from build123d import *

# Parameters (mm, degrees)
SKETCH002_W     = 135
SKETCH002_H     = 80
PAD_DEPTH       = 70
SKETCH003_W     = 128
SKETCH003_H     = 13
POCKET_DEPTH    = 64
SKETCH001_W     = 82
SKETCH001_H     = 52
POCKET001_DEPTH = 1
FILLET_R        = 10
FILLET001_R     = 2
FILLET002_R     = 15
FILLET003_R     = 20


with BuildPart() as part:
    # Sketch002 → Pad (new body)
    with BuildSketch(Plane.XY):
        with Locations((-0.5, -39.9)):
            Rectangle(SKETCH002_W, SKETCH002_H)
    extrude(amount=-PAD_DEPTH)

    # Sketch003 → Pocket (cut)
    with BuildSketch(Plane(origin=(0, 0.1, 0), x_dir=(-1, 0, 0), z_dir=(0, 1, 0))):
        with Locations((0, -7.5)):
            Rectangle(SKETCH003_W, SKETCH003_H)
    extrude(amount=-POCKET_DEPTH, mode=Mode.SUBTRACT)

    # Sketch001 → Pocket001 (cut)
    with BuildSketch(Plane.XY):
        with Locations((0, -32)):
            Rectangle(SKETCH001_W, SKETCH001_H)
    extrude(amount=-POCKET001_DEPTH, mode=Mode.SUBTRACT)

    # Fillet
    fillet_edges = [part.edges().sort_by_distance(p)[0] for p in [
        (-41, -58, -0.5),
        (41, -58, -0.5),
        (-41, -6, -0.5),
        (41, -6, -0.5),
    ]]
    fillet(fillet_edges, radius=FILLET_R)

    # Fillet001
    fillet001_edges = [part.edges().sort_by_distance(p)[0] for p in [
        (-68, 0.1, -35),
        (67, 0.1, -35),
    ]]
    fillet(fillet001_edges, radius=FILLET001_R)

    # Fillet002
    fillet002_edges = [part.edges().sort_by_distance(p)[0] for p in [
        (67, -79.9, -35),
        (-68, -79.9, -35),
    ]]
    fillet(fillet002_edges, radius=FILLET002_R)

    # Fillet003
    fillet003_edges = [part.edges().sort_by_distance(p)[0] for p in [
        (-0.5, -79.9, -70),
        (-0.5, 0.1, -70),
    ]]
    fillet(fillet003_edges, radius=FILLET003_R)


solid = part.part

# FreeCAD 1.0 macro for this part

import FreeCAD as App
import Part
import Sketcher
from FreeCAD import Vector


def edges_at(feature, points):
    """Names of the edges that pass closest to the given points."""
    edges = feature.Shape.Edges
    near = lambda p: min(range(len(edges)), key=lambda i: edges[i].distToShape(Part.Vertex(*p))[0])
    return sorted({f"Edge{near(p) + 1}" for p in points})


def add_polygon(sketch, points):
    """Adds a closed chain of lines whose ends are joined by coincident constraints."""
    first, n = sketch.GeometryCount, len(points)
    for a, b in zip(points, points[1:] + points[:1]):
        sketch.addGeometry(Part.LineSegment(App.Vector(*a, 0), App.Vector(*b, 0)), False)
    for i in range(n):
        sketch.addConstraint(Sketcher.Constraint("Coincident", first + i, 2, first + (i + 1) % n, 1))

doc = App.newDocument("Part")
body = doc.addObject("PartDesign::Body", "Body")

sketch1 = doc.addObject("Sketcher::SketchObject", "Sketch")
body.addObject(sketch1)
sketch1.AttachmentSupport = (doc.XY_Plane, [""])
sketch1.MapMode = "FlatFace"
add_polygon(sketch1, [(-68, 0), (-68, -80), (67, -80), (67, 0)])
sketch1.addConstraint([
    Sketcher.Constraint("Vertical", 0),
    Sketcher.Constraint("Horizontal", 1),
    Sketcher.Constraint("Vertical", 2),
    Sketcher.Constraint("Horizontal", 3),
    Sketcher.Constraint("DistanceX", 1, 1, 1, 2, 135.0),
    Sketcher.Constraint("DistanceY", 0, 2, 0, 1, 80.0),
    Sketcher.Constraint("DistanceX", 0, 2, -1, 1, 68.0),
    Sketcher.Constraint("DistanceY", 0, 2, -1, 1, 79.9),
])
pad1 = doc.addObject("PartDesign::Pad", "Pad")
body.addObject(pad1)
pad1.Profile = sketch1
pad1.Length = 70
pad1.Reversed = True

sketch2 = doc.addObject("Sketcher::SketchObject", "Sketch001")
body.addObject(sketch2)
sketch2.AttachmentSupport = (doc.XZ_Plane, [""])
sketch2.MapMode = "FlatFace"
sketch2.AttachmentOffset = App.Placement(Vector(0, 0, -0.1), App.Rotation())
add_polygon(sketch2, [(64, -1), (64, -14), (-64, -14), (-64, -1)])
sketch2.addConstraint([
    Sketcher.Constraint("Vertical", 0),
    Sketcher.Constraint("Horizontal", 1),
    Sketcher.Constraint("Vertical", 2),
    Sketcher.Constraint("Horizontal", 3),
    Sketcher.Constraint("DistanceX", 1, 2, 1, 1, 128.0),
    Sketcher.Constraint("DistanceY", 0, 2, 0, 1, 13.0),
    Sketcher.Constraint("DistanceX", -1, 1, 0, 2, 64.0),
    Sketcher.Constraint("DistanceY", 0, 2, -1, 1, 14.0),
])
pocket1 = doc.addObject("PartDesign::Pocket", "Pocket")
body.addObject(pocket1)
pocket1.Profile = sketch2
pocket1.Length = 64
pocket1.Reversed = True

sketch3 = doc.addObject("Sketcher::SketchObject", "Sketch002")
body.addObject(sketch3)
sketch3.AttachmentSupport = (doc.XY_Plane, [""])
sketch3.MapMode = "FlatFace"
add_polygon(sketch3, [(-41, -6), (-41, -58), (41, -58), (41, -6)])
sketch3.addConstraint([
    Sketcher.Constraint("Vertical", 0),
    Sketcher.Constraint("Horizontal", 1),
    Sketcher.Constraint("Vertical", 2),
    Sketcher.Constraint("Horizontal", 3),
    Sketcher.Constraint("DistanceX", 1, 1, 1, 2, 82.0),
    Sketcher.Constraint("DistanceY", 0, 2, 0, 1, 52.0),
    Sketcher.Constraint("DistanceX", 0, 2, -1, 1, 41.0),
    Sketcher.Constraint("DistanceY", 0, 2, -1, 1, 58.0),
])
pocket2 = doc.addObject("PartDesign::Pocket", "Pocket001")
body.addObject(pocket2)
pocket2.Profile = sketch3
pocket2.Length = 1
doc.recompute()

fillet = doc.addObject("PartDesign::Fillet", "Fillet")
body.addObject(fillet)
fillet.Base = (pocket2, edges_at(pocket2, [
    (-41, -58, -0.5),
    (41, -58, -0.5),
    (-41, -6, -0.5),
    (41, -6, -0.5),
]))
fillet.Radius = 10
doc.recompute()

fillet2 = doc.addObject("PartDesign::Fillet", "Fillet001")
body.addObject(fillet2)
fillet2.Base = (fillet, edges_at(fillet, [(-68, 0.1, -35), (67, 0.1, -35)]))
fillet2.Radius = 2
doc.recompute()

fillet3 = doc.addObject("PartDesign::Fillet", "Fillet002")
body.addObject(fillet3)
fillet3.Base = (fillet2, edges_at(fillet2, [(67, -79.9, -35), (-68, -79.9, -35)]))
fillet3.Radius = 15
doc.recompute()

fillet4 = doc.addObject("PartDesign::Fillet", "Fillet003")
body.addObject(fillet4)
fillet4.Base = (fillet3, edges_at(fillet3, [(-0.5, -79.9, -70), (-0.5, 0.1, -70)]))
fillet4.Radius = 20

doc.recompute()
